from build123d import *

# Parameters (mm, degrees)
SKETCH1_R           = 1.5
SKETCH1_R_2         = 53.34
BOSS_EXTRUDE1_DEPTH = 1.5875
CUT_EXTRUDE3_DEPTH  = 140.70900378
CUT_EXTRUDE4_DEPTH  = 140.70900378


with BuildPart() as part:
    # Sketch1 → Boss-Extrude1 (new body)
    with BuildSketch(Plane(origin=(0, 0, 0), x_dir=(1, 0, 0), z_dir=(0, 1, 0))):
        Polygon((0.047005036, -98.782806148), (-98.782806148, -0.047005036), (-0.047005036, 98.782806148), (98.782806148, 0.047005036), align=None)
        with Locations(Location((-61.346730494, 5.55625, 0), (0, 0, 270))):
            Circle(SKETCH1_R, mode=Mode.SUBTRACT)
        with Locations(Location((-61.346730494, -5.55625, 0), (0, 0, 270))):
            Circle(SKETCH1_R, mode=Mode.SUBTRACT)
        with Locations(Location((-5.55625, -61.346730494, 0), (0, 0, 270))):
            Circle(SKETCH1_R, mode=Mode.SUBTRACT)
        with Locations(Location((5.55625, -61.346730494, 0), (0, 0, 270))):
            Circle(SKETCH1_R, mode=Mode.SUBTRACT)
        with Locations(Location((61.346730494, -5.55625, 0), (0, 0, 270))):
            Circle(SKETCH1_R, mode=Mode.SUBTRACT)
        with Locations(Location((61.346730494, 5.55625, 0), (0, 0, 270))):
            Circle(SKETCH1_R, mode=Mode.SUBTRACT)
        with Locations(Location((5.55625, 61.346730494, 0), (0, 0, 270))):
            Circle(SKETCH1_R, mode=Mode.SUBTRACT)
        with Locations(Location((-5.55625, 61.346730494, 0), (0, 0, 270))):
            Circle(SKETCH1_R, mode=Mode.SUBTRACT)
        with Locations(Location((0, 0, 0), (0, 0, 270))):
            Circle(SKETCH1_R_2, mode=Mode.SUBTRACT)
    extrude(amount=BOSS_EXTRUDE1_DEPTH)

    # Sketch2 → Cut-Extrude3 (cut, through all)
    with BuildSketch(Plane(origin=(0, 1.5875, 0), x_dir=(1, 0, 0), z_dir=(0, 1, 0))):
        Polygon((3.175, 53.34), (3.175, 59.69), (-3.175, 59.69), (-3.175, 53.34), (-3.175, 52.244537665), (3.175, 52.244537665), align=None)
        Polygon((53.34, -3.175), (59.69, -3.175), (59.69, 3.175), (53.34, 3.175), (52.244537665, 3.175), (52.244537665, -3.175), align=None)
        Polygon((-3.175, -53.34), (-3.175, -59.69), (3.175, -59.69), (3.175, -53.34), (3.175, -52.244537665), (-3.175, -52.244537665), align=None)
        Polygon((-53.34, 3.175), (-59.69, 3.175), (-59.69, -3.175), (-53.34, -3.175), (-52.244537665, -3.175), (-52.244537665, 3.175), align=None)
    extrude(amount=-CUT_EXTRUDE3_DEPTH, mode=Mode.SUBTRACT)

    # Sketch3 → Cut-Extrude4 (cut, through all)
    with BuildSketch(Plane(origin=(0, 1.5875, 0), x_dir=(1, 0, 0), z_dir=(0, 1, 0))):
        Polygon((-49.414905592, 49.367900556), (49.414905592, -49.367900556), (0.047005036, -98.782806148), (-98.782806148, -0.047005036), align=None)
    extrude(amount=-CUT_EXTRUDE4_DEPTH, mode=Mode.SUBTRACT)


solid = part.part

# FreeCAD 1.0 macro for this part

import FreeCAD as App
import Part
import Sketcher

V = App.Vector
Q = App.Units.Quantity


def add_polygon(sketch, points):
    """Adds a closed chain of lines whose ends are joined by coincident constraints."""
    first, n = sketch.GeometryCount, len(points)
    for a, b in zip(points, points[1:] + points[:1]):
        sketch.addGeometry(Part.LineSegment(App.Vector(*a, 0), App.Vector(*b, 0)), False)
    for i in range(n):
        sketch.addConstraint(Sketcher.Constraint("Coincident", first + i, 2, first + (i + 1) % n, 1))

doc = App.newDocument("Part")
body = doc.addObject("PartDesign::Body", "Body")

sketch1 = doc.addObject("Sketcher::SketchObject", "Sketch")
body.addObject(sketch1)
sketch1.AttachmentSupport = (doc.XZ_Plane, [""])
sketch1.MapMode = "FlatFace"
add_polygon(sketch1, [(-98.8, 0), (0, 98.8), (98.8, 0), (0, -98.8)])
sketch1.addGeometry(Part.Circle(V(5.6, 61.3, 0), V(0, 0, 1), 1.5), False)
sketch1.addGeometry(Part.Circle(V(61.3, 5.6, 0), V(0, 0, 1), 1.5), False)
sketch1.addGeometry(Part.Circle(V(-5.6, 61.3, 0), V(0, 0, 1), 1.5), False)
sketch1.addGeometry(Part.Circle(V(-61.3, 5.6, 0), V(0, 0, 1), 1.5), False)
sketch1.addGeometry(Part.Circle(V(61.3, -5.6, 0), V(0, 0, 1), 1.5), False)
sketch1.addGeometry(Part.Circle(V(5.6, -61.3, 0), V(0, 0, 1), 1.5), False)
sketch1.addGeometry(Part.Circle(V(0, 0, 0), V(0, 0, 1), 53.3), False)
sketch1.addGeometry(Part.Circle(V(-61.3, -5.6, 0), V(0, 0, 1), 1.5), False)
sketch1.addGeometry(Part.Circle(V(-5.6, -61.3, 0), V(0, 0, 1), 1.5), False)
sketch1.addConstraint(Sketcher.Constraint("Coincident", 10, 3, -1, 1))
sketch1.addConstraint(Sketcher.Constraint("Equal", 4, 5))
sketch1.addConstraint(Sketcher.Constraint("Equal", 5, 6))
sketch1.addConstraint(Sketcher.Constraint("Equal", 6, 7))
sketch1.addConstraint(Sketcher.Constraint("Equal", 7, 8))
sketch1.addConstraint(Sketcher.Constraint("Equal", 8, 9))
sketch1.addConstraint(Sketcher.Constraint("Equal", 9, 11))
sketch1.addConstraint(Sketcher.Constraint("Equal", 11, 12))
sketch1.addConstraint(Sketcher.Constraint("Symmetric", 7, 3, 8, 3, -1, 1))
sketch1.addConstraint(Sketcher.Constraint("Symmetric", 6, 3, 9, 3, -1, 1))
sketch1.addConstraint(Sketcher.Constraint("Symmetric", 5, 3, 11, 3, -1, 1))
sketch1.addConstraint(Sketcher.Constraint("Symmetric", 4, 3, 12, 3, -1, 1))
sketch1.addConstraint(Sketcher.Constraint("Symmetric", 0, 2, 2, 2, -1, 1))
sketch1.addConstraint(Sketcher.Constraint("Symmetric", 1, 2, 3, 2, -1, 1))
sketch1.addConstraint(Sketcher.Constraint("Symmetric", 4, 3, 6, 3, -2))
sketch1.addConstraint(Sketcher.Constraint("Symmetric", 5, 3, 7, 3, -2))
sketch1.addConstraint(Sketcher.Constraint("Perpendicular", 0, 1))
sketch1.addConstraint(Sketcher.Constraint("Equal", 0, 1))
sketch1.addConstraint(Sketcher.Constraint("Diameter", 10, Q("4.2 in")))
sketch1.addConstraint(Sketcher.Constraint("Distance", 0, Q("5.5 in")))
sketch1.addConstraint(Sketcher.Constraint("Diameter", 4, Q("3 mm")))
sketch1.addConstraint(Sketcher.Constraint("DistanceX", -1, 1, 4, 3, Q("0.21875 in")))
sketch1.addConstraint(Sketcher.Constraint("DistanceY", -1, 1, 5, 3, Q("0.21875 in")))
sketch1.addConstraint(Sketcher.Constraint("DistanceY", -1, 1, 4, 3, Q("61.34673 mm")))
sketch1.addConstraint(Sketcher.Constraint("DistanceX", -1, 1, 5, 3, Q("61.34673 mm")))
sketch1.addConstraint(Sketcher.Constraint("DistanceX", -1, 1, 0, 2, Q("0.047005 mm")))
pad1 = doc.addObject("PartDesign::Pad", "Pad")
body.addObject(pad1)
pad1.Profile = sketch1
pad1.Length = Q("0.0625 in")
pad1.Reversed = True

sketch2 = doc.addObject("Sketcher::SketchObject", "Sketch001")
body.addObject(sketch2)
sketch2.AttachmentSupport = (doc.XZ_Plane, [""])
sketch2.MapMode = "FlatFace"
sketch2.AttachmentOffset = App.Placement(V(0, 0, -0.0625 * 25.4), App.Rotation())
add_polygon(sketch2, [(3, -60), (-3, -60), (-3, -52), (3, -52)])
add_polygon(sketch2, [(60, 3), (60, -3), (52, -3), (52, 3)])
add_polygon(sketch2, [(-3, 60), (3, 60), (3, 52), (-3, 52)])
add_polygon(sketch2, [(-60, -3), (-60, 3), (-52, 3), (-52, -3)])
sketch2.addConstraint(Sketcher.Constraint("Horizontal", 0))
sketch2.addConstraint(Sketcher.Constraint("Vertical", 1))
sketch2.addConstraint(Sketcher.Constraint("Horizontal", 2))
sketch2.addConstraint(Sketcher.Constraint("Vertical", 3))
sketch2.addConstraint(Sketcher.Constraint("Vertical", 4))
sketch2.addConstraint(Sketcher.Constraint("Horizontal", 5))
sketch2.addConstraint(Sketcher.Constraint("Vertical", 6))
sketch2.addConstraint(Sketcher.Constraint("Horizontal", 7))
sketch2.addConstraint(Sketcher.Constraint("Horizontal", 8))
sketch2.addConstraint(Sketcher.Constraint("Vertical", 9))
sketch2.addConstraint(Sketcher.Constraint("Horizontal", 10))
sketch2.addConstraint(Sketcher.Constraint("Vertical", 11))
sketch2.addConstraint(Sketcher.Constraint("Vertical", 12))
sketch2.addConstraint(Sketcher.Constraint("Horizontal", 13))
sketch2.addConstraint(Sketcher.Constraint("Vertical", 14))
sketch2.addConstraint(Sketcher.Constraint("Horizontal", 15))
sketch2.addConstraint(Sketcher.Constraint("Symmetric", 0, 2, 8, 2, -1, 1))
sketch2.addConstraint(Sketcher.Constraint("Symmetric", 2, 2, 10, 2, -1, 1))
sketch2.addConstraint(Sketcher.Constraint("Symmetric", 4, 2, 12, 2, -1, 1))
sketch2.addConstraint(Sketcher.Constraint("Symmetric", 6, 2, 14, 2, -1, 1))
sketch2.addConstraint(Sketcher.Constraint("Horizontal", 7, 2, 12, 2))
sketch2.addConstraint(Sketcher.Constraint("Vertical", 3, 2, 8, 2))
sketch2.addConstraint(Sketcher.Constraint("Equal", 15, 1))
sketch2.addConstraint(Sketcher.Constraint("Equal", 10, 4))
sketch2.addConstraint(Sketcher.Constraint("DistanceX", 0, 2, 0, 1, Q("0.25 in")))
sketch2.addConstraint(Sketcher.Constraint("DistanceY", 0, 2, -1, 1, Q("2.35 in")))
sketch2.addConstraint(Sketcher.Constraint("DistanceX", -1, 1, 4, 2, Q("2.35 in")))
sketch2.addConstraint(Sketcher.Constraint("DistanceX", 5, 2, 5, 1, Q("7.445462 mm")))
pocket1 = doc.addObject("PartDesign::Pocket", "Pocket")
body.addObject(pocket1)
pocket1.Profile = sketch2
pocket1.Type = "ThroughAll"
pocket1.Reversed = True

sketch3 = doc.addObject("Sketcher::SketchObject", "Sketch002")
body.addObject(sketch3)
sketch3.AttachmentSupport = (doc.XZ_Plane, [""])
sketch3.MapMode = "FlatFace"
sketch3.AttachmentOffset = App.Placement(V(0, 0, -0.0625 * 25.4), App.Rotation())
add_polygon(sketch3, [(49, 49), (-49, -49), (-99, 0), (0, 99)])
sketch3.addConstraint(Sketcher.Constraint("Symmetric", 0, 2, 3, 2, -1, 1))
sketch3.addConstraint(Sketcher.Constraint("Perpendicular", 0, 1))
sketch3.addConstraint(Sketcher.Constraint("Perpendicular", 1, 2))
sketch3.addConstraint(Sketcher.Constraint("Perpendicular", 2, 3))
sketch3.addConstraint(Sketcher.Constraint("Distance", 0, Q("5.5 in")))
sketch3.addConstraint(Sketcher.Constraint("Distance", 1, Q("2.75 in")))
sketch3.addConstraint(Sketcher.Constraint("DistanceY", 0, 2, -1, 1, Q("49.367901 mm")))
pocket2 = doc.addObject("PartDesign::Pocket", "Pocket001")
body.addObject(pocket2)
pocket2.Profile = sketch3
pocket2.Type = "ThroughAll"
pocket2.Reversed = True

doc.recompute()
